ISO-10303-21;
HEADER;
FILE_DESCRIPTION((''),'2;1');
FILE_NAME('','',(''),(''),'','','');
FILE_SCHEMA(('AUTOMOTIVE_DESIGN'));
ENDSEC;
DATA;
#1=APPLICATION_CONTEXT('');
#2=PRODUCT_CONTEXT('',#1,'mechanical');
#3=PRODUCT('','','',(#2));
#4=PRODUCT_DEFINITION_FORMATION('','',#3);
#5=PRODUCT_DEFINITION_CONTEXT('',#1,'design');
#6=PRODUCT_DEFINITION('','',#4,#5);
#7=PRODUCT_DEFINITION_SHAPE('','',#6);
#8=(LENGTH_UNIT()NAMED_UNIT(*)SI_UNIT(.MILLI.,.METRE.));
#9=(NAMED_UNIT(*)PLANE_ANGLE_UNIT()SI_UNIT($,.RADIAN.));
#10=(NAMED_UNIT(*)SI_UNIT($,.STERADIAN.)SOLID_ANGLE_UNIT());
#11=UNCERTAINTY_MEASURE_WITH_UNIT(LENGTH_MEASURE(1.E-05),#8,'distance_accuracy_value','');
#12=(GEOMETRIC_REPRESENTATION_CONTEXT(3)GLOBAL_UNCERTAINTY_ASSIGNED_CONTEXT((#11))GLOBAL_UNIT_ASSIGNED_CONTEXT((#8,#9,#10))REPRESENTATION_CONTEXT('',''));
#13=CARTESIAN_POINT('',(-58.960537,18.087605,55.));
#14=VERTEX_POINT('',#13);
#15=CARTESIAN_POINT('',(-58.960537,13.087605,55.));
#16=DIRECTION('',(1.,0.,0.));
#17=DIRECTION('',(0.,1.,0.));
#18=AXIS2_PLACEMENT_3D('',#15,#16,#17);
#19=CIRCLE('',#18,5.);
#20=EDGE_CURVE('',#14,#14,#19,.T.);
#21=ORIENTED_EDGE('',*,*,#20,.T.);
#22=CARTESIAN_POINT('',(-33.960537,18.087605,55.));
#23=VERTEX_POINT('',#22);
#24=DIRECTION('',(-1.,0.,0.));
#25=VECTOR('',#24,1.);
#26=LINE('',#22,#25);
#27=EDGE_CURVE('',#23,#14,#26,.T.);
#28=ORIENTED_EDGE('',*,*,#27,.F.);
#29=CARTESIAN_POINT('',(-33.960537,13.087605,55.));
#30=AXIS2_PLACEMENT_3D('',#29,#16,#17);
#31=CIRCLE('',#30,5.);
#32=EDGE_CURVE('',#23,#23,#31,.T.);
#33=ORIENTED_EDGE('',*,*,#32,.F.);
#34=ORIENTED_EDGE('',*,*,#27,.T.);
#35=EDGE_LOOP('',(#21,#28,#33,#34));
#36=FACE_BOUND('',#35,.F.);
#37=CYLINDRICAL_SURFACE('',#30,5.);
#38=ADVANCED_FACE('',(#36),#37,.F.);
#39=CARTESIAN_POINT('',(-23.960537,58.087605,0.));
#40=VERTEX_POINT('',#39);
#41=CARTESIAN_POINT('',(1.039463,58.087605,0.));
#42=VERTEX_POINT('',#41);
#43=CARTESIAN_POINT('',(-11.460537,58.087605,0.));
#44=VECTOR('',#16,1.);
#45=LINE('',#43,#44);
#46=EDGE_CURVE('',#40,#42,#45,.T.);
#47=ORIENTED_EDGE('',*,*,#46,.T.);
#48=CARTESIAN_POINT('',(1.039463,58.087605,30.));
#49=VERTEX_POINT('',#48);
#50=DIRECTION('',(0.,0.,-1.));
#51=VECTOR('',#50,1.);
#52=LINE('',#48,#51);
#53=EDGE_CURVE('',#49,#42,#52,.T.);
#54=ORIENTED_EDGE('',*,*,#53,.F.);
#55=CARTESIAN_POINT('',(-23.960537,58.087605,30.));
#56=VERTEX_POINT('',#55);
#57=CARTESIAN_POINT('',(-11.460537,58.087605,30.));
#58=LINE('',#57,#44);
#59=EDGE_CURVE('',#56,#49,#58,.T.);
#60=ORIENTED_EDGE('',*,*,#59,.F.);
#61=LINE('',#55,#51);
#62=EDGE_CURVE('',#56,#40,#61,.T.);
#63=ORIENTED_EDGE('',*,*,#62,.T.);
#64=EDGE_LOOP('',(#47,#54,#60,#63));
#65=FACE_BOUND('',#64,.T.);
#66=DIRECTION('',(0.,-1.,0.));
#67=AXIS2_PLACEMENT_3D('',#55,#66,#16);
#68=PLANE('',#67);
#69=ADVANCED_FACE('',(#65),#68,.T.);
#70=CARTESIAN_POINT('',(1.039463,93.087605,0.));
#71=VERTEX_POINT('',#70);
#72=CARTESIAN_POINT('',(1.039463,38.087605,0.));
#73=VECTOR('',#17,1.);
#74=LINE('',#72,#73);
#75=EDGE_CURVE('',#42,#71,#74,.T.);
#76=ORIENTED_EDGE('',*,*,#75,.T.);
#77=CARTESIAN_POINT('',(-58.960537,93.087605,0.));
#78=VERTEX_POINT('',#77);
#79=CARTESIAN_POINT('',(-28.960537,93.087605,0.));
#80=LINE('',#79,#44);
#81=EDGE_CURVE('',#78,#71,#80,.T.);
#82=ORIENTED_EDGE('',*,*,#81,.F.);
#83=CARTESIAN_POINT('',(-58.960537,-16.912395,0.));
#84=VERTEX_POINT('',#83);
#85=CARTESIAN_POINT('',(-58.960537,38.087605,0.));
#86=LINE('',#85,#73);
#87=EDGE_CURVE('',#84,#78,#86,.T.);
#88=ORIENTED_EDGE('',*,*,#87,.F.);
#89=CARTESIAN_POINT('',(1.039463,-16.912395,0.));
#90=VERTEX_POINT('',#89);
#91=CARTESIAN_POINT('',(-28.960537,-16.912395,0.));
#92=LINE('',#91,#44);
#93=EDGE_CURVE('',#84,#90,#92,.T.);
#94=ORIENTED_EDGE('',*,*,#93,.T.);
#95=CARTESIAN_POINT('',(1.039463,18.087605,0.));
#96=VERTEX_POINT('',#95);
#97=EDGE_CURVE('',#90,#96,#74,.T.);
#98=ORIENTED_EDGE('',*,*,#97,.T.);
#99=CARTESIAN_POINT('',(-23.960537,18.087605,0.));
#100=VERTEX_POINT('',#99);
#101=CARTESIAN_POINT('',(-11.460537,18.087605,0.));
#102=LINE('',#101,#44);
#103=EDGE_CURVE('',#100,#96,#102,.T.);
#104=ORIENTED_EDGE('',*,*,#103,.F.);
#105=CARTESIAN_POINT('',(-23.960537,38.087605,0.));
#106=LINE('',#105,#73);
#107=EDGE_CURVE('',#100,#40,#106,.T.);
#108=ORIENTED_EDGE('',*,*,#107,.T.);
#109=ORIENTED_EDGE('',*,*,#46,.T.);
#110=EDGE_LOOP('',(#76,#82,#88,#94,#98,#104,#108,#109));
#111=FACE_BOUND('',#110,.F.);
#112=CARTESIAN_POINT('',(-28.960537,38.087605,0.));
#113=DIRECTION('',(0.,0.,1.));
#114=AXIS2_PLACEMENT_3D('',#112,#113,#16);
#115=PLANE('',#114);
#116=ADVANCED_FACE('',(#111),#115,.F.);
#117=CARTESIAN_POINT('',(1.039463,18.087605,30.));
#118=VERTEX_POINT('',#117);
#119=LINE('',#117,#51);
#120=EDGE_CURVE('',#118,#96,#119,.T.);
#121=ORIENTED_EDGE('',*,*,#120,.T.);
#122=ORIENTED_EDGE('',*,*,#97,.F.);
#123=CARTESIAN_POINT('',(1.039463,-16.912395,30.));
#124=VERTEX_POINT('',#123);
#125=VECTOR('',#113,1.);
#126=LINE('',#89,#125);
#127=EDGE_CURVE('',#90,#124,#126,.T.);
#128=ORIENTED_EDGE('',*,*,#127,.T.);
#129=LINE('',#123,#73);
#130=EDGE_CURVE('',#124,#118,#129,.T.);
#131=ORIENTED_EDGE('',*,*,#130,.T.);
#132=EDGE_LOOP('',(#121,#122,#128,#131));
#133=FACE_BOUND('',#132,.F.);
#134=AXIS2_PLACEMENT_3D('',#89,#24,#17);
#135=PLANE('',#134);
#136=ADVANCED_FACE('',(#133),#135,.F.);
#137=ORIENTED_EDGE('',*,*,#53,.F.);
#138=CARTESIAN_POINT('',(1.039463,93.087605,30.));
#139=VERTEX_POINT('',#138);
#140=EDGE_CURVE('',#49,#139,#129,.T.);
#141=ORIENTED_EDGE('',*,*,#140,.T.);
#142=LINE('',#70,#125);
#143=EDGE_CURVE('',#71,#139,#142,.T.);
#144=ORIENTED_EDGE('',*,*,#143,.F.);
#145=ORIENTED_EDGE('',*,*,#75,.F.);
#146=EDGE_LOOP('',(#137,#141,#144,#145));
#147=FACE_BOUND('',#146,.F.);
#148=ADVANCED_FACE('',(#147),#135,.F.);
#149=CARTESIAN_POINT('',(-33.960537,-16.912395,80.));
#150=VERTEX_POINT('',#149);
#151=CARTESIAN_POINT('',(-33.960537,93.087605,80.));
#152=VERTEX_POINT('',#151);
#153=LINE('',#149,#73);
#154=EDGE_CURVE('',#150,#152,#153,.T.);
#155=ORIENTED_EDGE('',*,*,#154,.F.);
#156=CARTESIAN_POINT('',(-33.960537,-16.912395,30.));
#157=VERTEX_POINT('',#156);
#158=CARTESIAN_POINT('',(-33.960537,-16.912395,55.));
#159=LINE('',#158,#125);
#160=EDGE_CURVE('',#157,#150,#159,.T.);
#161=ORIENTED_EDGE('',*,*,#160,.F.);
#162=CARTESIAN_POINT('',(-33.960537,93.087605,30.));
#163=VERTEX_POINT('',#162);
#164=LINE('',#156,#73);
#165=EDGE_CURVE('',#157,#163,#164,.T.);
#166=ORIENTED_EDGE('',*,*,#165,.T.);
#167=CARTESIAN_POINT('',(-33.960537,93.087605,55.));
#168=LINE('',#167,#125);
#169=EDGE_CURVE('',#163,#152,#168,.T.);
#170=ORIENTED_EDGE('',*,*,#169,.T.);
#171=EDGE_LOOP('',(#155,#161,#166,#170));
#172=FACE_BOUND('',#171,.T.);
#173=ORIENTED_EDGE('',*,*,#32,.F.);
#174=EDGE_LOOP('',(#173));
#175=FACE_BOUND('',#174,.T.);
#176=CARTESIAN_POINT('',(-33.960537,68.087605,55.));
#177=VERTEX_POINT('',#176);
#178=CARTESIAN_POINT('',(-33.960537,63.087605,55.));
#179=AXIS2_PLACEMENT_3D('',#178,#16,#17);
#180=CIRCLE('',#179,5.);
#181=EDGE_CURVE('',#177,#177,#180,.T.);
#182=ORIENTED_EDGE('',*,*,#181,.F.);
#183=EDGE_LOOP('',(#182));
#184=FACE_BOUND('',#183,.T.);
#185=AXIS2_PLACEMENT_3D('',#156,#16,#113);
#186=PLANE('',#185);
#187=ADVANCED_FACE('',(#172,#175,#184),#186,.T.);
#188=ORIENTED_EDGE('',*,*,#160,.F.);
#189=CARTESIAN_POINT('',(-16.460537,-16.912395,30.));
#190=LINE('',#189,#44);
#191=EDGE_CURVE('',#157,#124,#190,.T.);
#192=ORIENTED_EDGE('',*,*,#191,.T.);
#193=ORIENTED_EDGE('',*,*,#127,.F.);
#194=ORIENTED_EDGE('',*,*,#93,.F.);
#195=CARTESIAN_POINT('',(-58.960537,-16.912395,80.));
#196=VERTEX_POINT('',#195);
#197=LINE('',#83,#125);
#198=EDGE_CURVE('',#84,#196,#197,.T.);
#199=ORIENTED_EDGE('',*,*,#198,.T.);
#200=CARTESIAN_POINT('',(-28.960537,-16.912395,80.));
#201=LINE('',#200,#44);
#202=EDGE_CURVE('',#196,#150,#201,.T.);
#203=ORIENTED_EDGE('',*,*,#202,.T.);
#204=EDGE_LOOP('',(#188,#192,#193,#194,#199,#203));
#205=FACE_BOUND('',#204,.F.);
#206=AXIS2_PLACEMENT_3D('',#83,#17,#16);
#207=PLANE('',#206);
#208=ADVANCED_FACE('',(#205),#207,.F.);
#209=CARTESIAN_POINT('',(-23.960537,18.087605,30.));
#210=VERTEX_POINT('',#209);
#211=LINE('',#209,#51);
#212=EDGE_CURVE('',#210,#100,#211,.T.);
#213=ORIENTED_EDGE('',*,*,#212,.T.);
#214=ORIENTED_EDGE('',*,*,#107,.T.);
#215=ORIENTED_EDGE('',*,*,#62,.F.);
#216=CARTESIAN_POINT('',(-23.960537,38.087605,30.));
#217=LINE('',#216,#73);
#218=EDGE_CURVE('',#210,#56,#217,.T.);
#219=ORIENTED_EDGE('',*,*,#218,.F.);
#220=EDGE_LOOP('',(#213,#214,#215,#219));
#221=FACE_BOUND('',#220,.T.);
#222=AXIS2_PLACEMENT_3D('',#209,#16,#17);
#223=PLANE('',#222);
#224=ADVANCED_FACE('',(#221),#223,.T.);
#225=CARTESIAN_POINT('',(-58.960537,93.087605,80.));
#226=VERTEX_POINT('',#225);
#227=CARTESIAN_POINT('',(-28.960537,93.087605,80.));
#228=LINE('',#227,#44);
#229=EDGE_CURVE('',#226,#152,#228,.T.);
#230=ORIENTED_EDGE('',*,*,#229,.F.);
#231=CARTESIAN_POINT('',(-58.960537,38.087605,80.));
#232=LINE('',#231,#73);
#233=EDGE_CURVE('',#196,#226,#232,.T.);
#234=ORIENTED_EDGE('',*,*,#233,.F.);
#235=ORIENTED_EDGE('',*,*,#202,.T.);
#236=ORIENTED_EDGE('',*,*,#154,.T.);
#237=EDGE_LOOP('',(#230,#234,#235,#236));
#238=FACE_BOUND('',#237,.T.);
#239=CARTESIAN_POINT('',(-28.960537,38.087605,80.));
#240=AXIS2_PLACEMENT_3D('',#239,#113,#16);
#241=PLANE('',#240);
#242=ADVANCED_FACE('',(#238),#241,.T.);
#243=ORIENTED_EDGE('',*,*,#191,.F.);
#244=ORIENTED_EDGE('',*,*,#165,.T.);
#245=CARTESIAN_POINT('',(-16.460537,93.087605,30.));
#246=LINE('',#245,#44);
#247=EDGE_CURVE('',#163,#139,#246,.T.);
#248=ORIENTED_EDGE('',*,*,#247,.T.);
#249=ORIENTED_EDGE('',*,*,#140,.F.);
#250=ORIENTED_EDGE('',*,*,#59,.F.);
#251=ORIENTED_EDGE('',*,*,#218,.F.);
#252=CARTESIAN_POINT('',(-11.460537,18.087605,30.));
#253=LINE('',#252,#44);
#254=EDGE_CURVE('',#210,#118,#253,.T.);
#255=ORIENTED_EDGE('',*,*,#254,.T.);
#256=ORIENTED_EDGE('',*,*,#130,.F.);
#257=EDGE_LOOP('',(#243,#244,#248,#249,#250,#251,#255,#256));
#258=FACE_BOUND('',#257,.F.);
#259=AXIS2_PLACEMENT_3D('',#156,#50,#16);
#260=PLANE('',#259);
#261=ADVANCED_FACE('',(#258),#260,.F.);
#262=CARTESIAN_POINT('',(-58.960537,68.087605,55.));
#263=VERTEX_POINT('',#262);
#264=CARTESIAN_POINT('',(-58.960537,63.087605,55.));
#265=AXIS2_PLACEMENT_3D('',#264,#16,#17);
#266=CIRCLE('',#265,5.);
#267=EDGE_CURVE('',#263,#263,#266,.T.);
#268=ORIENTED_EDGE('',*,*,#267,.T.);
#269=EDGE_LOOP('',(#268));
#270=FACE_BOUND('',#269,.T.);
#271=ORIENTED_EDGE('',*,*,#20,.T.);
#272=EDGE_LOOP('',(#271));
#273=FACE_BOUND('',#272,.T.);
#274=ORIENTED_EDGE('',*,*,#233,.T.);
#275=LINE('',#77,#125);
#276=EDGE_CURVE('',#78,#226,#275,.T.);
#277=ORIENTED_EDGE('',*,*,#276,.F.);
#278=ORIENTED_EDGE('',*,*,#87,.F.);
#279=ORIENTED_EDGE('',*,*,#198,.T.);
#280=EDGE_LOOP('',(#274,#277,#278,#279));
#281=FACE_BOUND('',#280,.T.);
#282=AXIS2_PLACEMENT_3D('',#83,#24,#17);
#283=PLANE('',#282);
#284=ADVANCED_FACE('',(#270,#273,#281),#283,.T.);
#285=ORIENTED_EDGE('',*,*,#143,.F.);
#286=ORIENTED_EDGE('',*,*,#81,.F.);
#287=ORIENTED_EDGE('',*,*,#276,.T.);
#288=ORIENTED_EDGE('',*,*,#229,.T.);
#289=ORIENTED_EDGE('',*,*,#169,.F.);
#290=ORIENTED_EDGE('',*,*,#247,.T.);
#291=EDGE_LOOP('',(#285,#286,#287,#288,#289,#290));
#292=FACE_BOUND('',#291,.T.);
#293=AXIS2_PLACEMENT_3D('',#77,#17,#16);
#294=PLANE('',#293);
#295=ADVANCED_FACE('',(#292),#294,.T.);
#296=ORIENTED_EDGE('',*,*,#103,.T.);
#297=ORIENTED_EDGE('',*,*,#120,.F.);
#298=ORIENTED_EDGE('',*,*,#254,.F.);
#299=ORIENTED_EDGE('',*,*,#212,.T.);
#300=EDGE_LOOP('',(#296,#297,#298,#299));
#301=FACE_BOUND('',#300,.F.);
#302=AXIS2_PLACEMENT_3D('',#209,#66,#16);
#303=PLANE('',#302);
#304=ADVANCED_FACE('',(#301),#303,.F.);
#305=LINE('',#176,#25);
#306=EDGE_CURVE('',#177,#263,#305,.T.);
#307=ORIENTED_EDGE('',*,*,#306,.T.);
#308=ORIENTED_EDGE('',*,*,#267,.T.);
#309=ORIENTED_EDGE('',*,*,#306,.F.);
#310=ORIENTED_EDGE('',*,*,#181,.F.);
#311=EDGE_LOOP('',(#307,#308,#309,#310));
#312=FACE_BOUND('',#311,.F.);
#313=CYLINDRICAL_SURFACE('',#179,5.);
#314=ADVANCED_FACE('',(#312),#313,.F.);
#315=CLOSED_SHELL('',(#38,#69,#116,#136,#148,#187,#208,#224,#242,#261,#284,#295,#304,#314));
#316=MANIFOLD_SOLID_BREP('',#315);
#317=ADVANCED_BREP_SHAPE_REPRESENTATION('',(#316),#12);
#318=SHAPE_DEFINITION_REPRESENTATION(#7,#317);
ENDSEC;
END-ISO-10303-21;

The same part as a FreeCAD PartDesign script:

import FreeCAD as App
import Part
import Sketcher
from FreeCAD import Vector
Q = App.Units.Quantity


def add_polygon(sketch, points):
    """Adds a closed chain of lines whose ends are joined by coincident constraints."""
    first, n = sketch.GeometryCount, len(points)
    for a, b in zip(points, points[1:] + points[:1]):
        sketch.addGeometry(Part.LineSegment(App.Vector(*a, 0), App.Vector(*b, 0)), False)
    for i in range(n):
        sketch.addConstraint(Sketcher.Constraint("Coincident", first + i, 2, first + (i + 1) % n, 1))

doc = App.newDocument("Part")
params = doc.addObject("Spreadsheet::Sheet", "Params")
for row, (alias, value) in enumerate([
    ("sketch1_width", "60 mm"),
    ("sketch1_height", "110 mm"),
    ("pad1_length", "80 mm"),
    ("sketch2_width", "35 mm"),
    ("sketch2_height", "50 mm"),
    ("pocket1_length", "110 mm"),
    ("sketch3_width", "25 mm"),
    ("sketch3_height", "40 mm"),
    ("pocket2_length", "30 mm"),
    ("sketch4_diameter", "10 mm"),
    ("pocket3_length", "25 mm"),
], start=1):
    params.set(f"A{row}", alias)
    params.set(f"B{row}", "=" + value)
    params.setAlias(f"B{row}", alias)

body = doc.addObject("PartDesign::Body", "Body")

sketch1 = doc.addObject("Sketcher::SketchObject", "Sketch")
body.addObject(sketch1)
sketch1.AttachmentSupport = (doc.XY_Plane, [""])
sketch1.MapMode = "FlatFace"
add_polygon(sketch1, [(-58.960537, 93.087605), (-58.960537, -16.912395), (1.039463, -16.912395), (1.039463, 93.087605)])
sketch1.addConstraint([
    Sketcher.Constraint("Vertical", 0),
    Sketcher.Constraint("Horizontal", 1),
    Sketcher.Constraint("Vertical", 2),
    Sketcher.Constraint("Horizontal", 3),
    Sketcher.Constraint("DistanceX", 1, 1, 1, 2, Q("60 mm")),
    Sketcher.Constraint("DistanceY", 0, 2, 0, 1, Q("110 mm")),
    Sketcher.Constraint("DistanceX", 0, 2, -1, 1, Q("58.960537 mm")),
    Sketcher.Constraint("DistanceY", 0, 2, -1, 1, Q("16.912395 mm")),
])
sketch1.setExpression("Constraints[8]", "Params.sketch1_width")
sketch1.setExpression("Constraints[9]", "Params.sketch1_height")
pad1 = doc.addObject("PartDesign::Pad", "Pad")
body.addObject(pad1)
pad1.Profile = sketch1
pad1.setExpression("Length", "Params.pad1_length")

sketch2 = doc.addObject("Sketcher::SketchObject", "Sketch001")
body.addObject(sketch2)
sketch2.AttachmentSupport = (doc.XZ_Plane, [""])
sketch2.MapMode = "FlatFace"
sketch2.AttachmentOffset = App.Placement(Vector(0, 0, 16.912395), App.Rotation())
add_polygon(sketch2, [(-33.960537, 80), (-33.960537, 30), (1.039463, 30), (1.039463, 80)])
sketch2.addConstraint([
    Sketcher.Constraint("Vertical", 0),
    Sketcher.Constraint("Horizontal", 1),
    Sketcher.Constraint("Vertical", 2),
    Sketcher.Constraint("Horizontal", 3),
    Sketcher.Constraint("DistanceX", 1, 1, 1, 2, Q("35 mm")),
    Sketcher.Constraint("DistanceY", 0, 2, 0, 1, Q("50 mm")),
    Sketcher.Constraint("DistanceY", -1, 1, 0, 2, Q("30 mm")),
    Sketcher.Constraint("DistanceX", 0, 2, -1, 1, Q("33.960537 mm")),
])
sketch2.setExpression("Constraints[8]", "Params.sketch2_width")
sketch2.setExpression("Constraints[9]", "Params.sketch2_height")
pocket1 = doc.addObject("PartDesign::Pocket", "Pocket")
body.addObject(pocket1)
pocket1.Profile = sketch2
pocket1.setExpression("Length", "Params.pocket1_length")

sketch3 = doc.addObject("Sketcher::SketchObject", "Sketch002")
body.addObject(sketch3)
sketch3.AttachmentSupport = (doc.XY_Plane, [""])
sketch3.MapMode = "FlatFace"
sketch3.AttachmentOffset = App.Placement(Vector(0, 0, 30), App.Rotation())
add_polygon(sketch3, [(-23.960537, 58.087605), (-23.960537, 18.087605), (1.039463, 18.087605), (1.039463, 58.087605)])
sketch3.addConstraint([
    Sketcher.Constraint("Vertical", 0),
    Sketcher.Constraint("Horizontal", 1),
    Sketcher.Constraint("Vertical", 2),
    Sketcher.Constraint("Horizontal", 3),
    Sketcher.Constraint("DistanceX", 1, 1, 1, 2, Q("25 mm")),
    Sketcher.Constraint("DistanceY", 0, 2, 0, 1, Q("40 mm")),
    Sketcher.Constraint("DistanceX", 0, 2, -1, 1, Q("23.960537 mm")),
    Sketcher.Constraint("DistanceY", -1, 1, 0, 2, Q("18.087605 mm")),
])
sketch3.setExpression("Constraints[8]", "Params.sketch3_width")
sketch3.setExpression("Constraints[9]", "Params.sketch3_height")
pocket2 = doc.addObject("PartDesign::Pocket", "Pocket001")
body.addObject(pocket2)
pocket2.Profile = sketch3
pocket2.setExpression("Length", "Params.pocket2_length")

sketch4 = doc.addObject("Sketcher::SketchObject", "Sketch003")
body.addObject(sketch4)
sketch4.AttachmentSupport = (doc.YZ_Plane, [""])
sketch4.MapMode = "FlatFace"
sketch4.AttachmentOffset = App.Placement(Vector(0, 0, -33.960537), App.Rotation())
sketch4.addGeometry([
    Part.Circle(Vector(13.087605, 55, 0), Vector(0, 0, 1), 5),
    Part.Circle(Vector(63.087605, 55, 0), Vector(0, 0, 1), 5),
], False)
sketch4.addConstraint([
    Sketcher.Constraint("Equal", 0, 1),
    Sketcher.Constraint("Horizontal", 0, 3, 1, 3),
    Sketcher.Constraint("Diameter", 0, Q("10 mm")),
    Sketcher.Constraint("DistanceY", -1, 1, 0, 3, Q("55 mm")),
    Sketcher.Constraint("DistanceX", 0, 3, 1, 3, Q("50 mm")),
    Sketcher.Constraint("DistanceX", -1, 1, 0, 3, Q("13.087605 mm")),
])
sketch4.setExpression("Constraints[2]", "Params.sketch4_diameter")
pocket3 = doc.addObject("PartDesign::Pocket", "Pocket002")
body.addObject(pocket3)
pocket3.Profile = sketch4
pocket3.setExpression("Length", "Params.pocket3_length")

doc.recompute()
